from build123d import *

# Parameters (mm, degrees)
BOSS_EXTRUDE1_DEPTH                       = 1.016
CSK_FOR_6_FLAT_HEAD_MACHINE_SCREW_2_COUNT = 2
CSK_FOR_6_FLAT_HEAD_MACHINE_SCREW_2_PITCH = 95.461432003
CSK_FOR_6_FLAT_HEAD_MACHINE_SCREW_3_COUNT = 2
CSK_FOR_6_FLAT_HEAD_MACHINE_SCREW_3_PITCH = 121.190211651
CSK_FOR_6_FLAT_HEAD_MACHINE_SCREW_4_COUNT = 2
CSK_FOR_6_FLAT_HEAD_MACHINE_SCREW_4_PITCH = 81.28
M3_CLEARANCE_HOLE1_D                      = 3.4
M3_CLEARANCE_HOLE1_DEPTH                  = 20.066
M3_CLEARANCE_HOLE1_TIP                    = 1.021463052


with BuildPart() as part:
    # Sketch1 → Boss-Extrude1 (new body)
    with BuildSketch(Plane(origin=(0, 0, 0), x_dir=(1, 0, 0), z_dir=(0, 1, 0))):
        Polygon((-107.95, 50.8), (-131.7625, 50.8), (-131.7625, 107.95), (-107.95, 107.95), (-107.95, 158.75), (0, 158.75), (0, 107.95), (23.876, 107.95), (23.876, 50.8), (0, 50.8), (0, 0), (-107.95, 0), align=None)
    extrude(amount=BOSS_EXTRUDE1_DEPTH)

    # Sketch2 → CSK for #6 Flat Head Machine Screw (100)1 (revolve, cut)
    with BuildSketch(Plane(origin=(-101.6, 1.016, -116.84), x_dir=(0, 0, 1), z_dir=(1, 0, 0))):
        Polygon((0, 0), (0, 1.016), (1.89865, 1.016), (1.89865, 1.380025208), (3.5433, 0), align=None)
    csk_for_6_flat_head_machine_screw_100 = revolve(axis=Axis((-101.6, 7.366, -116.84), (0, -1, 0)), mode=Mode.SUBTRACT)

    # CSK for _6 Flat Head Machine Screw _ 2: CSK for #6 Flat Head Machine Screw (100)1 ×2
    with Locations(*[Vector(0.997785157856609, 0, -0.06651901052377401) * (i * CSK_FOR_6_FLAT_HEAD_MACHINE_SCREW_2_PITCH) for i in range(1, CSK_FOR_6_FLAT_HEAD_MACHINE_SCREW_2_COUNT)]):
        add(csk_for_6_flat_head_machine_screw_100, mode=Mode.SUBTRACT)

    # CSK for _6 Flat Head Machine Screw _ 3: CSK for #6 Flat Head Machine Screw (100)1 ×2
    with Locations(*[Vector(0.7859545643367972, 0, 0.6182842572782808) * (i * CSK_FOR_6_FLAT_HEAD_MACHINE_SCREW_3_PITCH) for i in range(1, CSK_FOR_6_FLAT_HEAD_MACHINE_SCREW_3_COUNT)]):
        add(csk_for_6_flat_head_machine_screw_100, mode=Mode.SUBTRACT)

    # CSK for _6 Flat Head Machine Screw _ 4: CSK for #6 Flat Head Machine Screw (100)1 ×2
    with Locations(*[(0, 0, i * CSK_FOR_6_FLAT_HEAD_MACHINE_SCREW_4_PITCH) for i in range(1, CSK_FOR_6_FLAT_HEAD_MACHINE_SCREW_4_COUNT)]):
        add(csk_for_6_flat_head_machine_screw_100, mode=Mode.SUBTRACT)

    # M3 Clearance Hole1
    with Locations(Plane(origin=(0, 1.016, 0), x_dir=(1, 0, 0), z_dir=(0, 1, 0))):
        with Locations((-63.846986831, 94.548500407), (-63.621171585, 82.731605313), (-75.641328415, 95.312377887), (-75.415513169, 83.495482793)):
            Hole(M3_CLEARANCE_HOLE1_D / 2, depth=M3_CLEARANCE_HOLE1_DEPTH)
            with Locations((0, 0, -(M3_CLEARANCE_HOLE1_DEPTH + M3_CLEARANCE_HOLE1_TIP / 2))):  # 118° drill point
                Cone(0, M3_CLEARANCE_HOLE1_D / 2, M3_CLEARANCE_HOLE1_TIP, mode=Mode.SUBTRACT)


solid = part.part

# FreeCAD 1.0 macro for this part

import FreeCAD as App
import Part
import Sketcher
Q = App.Units.Quantity

doc = App.newDocument("Part")
body = doc.addObject("PartDesign::Body", "Body")

# Sketch on XZ plane
sketch1 = body.newObject("Sketcher::SketchObject", "Sketch")
sketch1.AttachmentSupport = (doc.getObject("XZ_Plane"), [""])
sketch1.MapMode = "FlatFace"
sketch1.addGeometry([
    Part.LineSegment(App.Vector(-131.7625, -50.8, 0), App.Vector(-107.95, -50.8, 0)),  # 0
    Part.LineSegment(App.Vector(-107.95, -50.8, 0), App.Vector(-107.95, 0, 0)),  # 1
    Part.LineSegment(App.Vector(-107.95, 0, 0), App.Vector(0, 0, 0)),  # 2
    Part.LineSegment(App.Vector(0, 0, 0), App.Vector(0, -50.8, 0)),  # 3
    Part.LineSegment(App.Vector(0, -50.8, 0), App.Vector(23.876, -50.8, 0)),  # 4
    Part.LineSegment(App.Vector(23.876, -50.8, 0), App.Vector(23.876, -107.95, 0)),  # 5
    Part.LineSegment(App.Vector(23.876, -107.95, 0), App.Vector(0, -107.95, 0)),  # 6
    Part.LineSegment(App.Vector(0, -107.95, 0), App.Vector(0, -158.75, 0)),  # 7
    Part.LineSegment(App.Vector(0, -158.75, 0), App.Vector(-107.95, -158.75, 0)),  # 8
    Part.LineSegment(App.Vector(-107.95, -158.75, 0), App.Vector(-107.95, -107.95, 0)),  # 9
    Part.LineSegment(App.Vector(-107.95, -107.95, 0), App.Vector(-131.7625, -107.95, 0)),  # 10
    Part.LineSegment(App.Vector(-131.7625, -107.95, 0), App.Vector(-131.7625, -50.8, 0)),  # 11
], False)
sketch1.addConstraint([
    Sketcher.Constraint("Coincident", 0, 2, 1, 1),
    Sketcher.Constraint("Coincident", 1, 2, 2, 1),
    Sketcher.Constraint("Coincident", 2, 2, 3, 1),
    Sketcher.Constraint("Coincident", 3, 2, 4, 1),
    Sketcher.Constraint("Coincident", 4, 2, 5, 1),
    Sketcher.Constraint("Coincident", 5, 2, 6, 1),
    Sketcher.Constraint("Coincident", 6, 2, 7, 1),
    Sketcher.Constraint("Coincident", 7, 2, 8, 1),
    Sketcher.Constraint("Coincident", 8, 2, 9, 1),
    Sketcher.Constraint("Coincident", 9, 2, 10, 1),
    Sketcher.Constraint("Coincident", 10, 2, 11, 1),
    Sketcher.Constraint("Coincident", 11, 2, 0, 1),
    Sketcher.Constraint("Horizontal", 0),
    Sketcher.Constraint("Vertical", 1),
    Sketcher.Constraint("Horizontal", 2),
    Sketcher.Constraint("Vertical", 3),
    Sketcher.Constraint("Horizontal", 4),
    Sketcher.Constraint("Vertical", 5),
    Sketcher.Constraint("Horizontal", 6),
    Sketcher.Constraint("Vertical", 7),
    Sketcher.Constraint("Horizontal", 8),
    Sketcher.Constraint("Vertical", 9),
    Sketcher.Constraint("Horizontal", 10),
    Sketcher.Constraint("Vertical", 11),
    Sketcher.Constraint("Coincident", 2, 2, -1, 1),
    Sketcher.Constraint("PointOnObject", 6, 2, -2),
    Sketcher.Constraint("Horizontal", 0, 2, 3, 2),
    Sketcher.Constraint("Horizontal", 6, 2, 9, 2),
    Sketcher.Constraint("Vertical", 1, 2, 8, 2),
    Sketcher.Constraint("Equal", 3, 7),
    Sketcher.Constraint("DistanceY", 1, 1, 1, 2, Q("2 in")),
    Sketcher.Constraint("DistanceX", 2, 1, 2, 2, Q("4.25 in")),
    Sketcher.Constraint("DistanceX", 4, 1, 4, 2, Q("0.94 in")),
    Sketcher.Constraint("DistanceY", 5, 2, 5, 1, Q("2.25 in")),
    Sketcher.Constraint("DistanceX", 0, 1, 0, 2, Q("0.9375 in")),
])
pad1 = body.newObject("PartDesign::Pad", "Pad")
pad1.Profile = sketch1
pad1.Length = Q("0.04 in")
pad1.Reversed = True

# Sketch on YZ plane
sketch2 = body.newObject("Sketcher::SketchObject", "Sketch001")
sketch2.AttachmentSupport = (doc.getObject("YZ_Plane"), [""])
sketch2.MapMode = "FlatFace"
sketch2.AttachmentOffset = App.Placement(App.Vector(0, 0, -4 * 25.4), App.Rotation())
sketch2.addGeometry([
    Part.LineSegment(App.Vector(0, -116.84, 0), App.Vector(1.016, -116.84, 0)),  # 0
    Part.LineSegment(App.Vector(1.016, -116.84, 0), App.Vector(1.016, -113.2967, 0)),  # 1
    Part.LineSegment(App.Vector(1.016, -113.2967, 0), App.Vector(-0.364025, -114.94135, 0)),  # 2
    Part.LineSegment(App.Vector(-0.364025, -114.94135, 0), App.Vector(0, -114.94135, 0)),  # 3
    Part.LineSegment(App.Vector(0, -114.94135, 0), App.Vector(0, -116.84, 0)),  # 4
], False)
sketch2.addGeometry(Part.LineSegment(App.Vector(1.016, -116.84, 0), App.Vector(-0.364025, -116.84, 0)), True)  # axis
sketch2.addConstraint([
    Sketcher.Constraint("Coincident", 0, 2, 1, 1),
    Sketcher.Constraint("Coincident", 1, 2, 2, 1),
    Sketcher.Constraint("Coincident", 2, 2, 3, 1),
    Sketcher.Constraint("Coincident", 3, 2, 4, 1),
    Sketcher.Constraint("Coincident", 4, 2, 0, 1),
    Sketcher.Constraint("Horizontal", 0),
    Sketcher.Constraint("Vertical", 1),
    Sketcher.Constraint("Horizontal", 3),
    Sketcher.Constraint("Vertical", 4),
    Sketcher.Constraint("Horizontal", 5),
    Sketcher.Constraint("Coincident", 5, 1, 0, 2),
    Sketcher.Constraint("PointOnObject", 3, 2, -2),
    Sketcher.Constraint("Vertical", 2, 2, 5, 2),
    Sketcher.Constraint("Angle", 2, Q("-130 deg")),
    Sketcher.Constraint("DistanceX", 0, 1, 0, 2, Q("0.04 in")),
    Sketcher.Constraint("DistanceY", 0, 2, -1, 1, Q("4.6 in")),
    Sketcher.Constraint("DistanceY", 1, 1, 1, 2, Q("0.1395 in")),
    Sketcher.Constraint("DistanceY", 4, 2, 4, 1, Q("1.89865 mm")),
])
groove = body.newObject("PartDesign::Groove", "Groove")
groove.Profile = sketch2
groove.ReferenceAxis = (sketch2, ["Axis0"])
groove.Angle = 360
doc.recompute()

datumline = body.newObject("PartDesign::Line", "DatumLine")
datumline.Placement = App.Placement(App.Vector(0, 0, 0), App.Rotation(App.Vector(0, 0, 1), App.Vector(0.997785158, 0, -0.066519011)))
linearpattern = body.newObject("PartDesign::LinearPattern", "LinearPattern")
linearpattern.Originals = [groove]
linearpattern.Direction = (datumline, [""])
linearpattern.Mode = "offset"
linearpattern.Offset = 95.461432
linearpattern.Occurrences = 2
body.Tip = linearpattern
doc.recompute()

datumline2 = body.newObject("PartDesign::Line", "DatumLine001")
datumline2.Placement = App.Placement(App.Vector(0, 0, 0), App.Rotation(App.Vector(0, 0, 1), App.Vector(0.785954564, 0, 0.618284257)))
linearpattern2 = body.newObject("PartDesign::LinearPattern", "LinearPattern001")
linearpattern2.Originals = [groove]
linearpattern2.Direction = (datumline2, [""])
linearpattern2.Mode = "offset"
linearpattern2.Offset = 121.190212
linearpattern2.Occurrences = 2
body.Tip = linearpattern2
doc.recompute()

linearpattern3 = body.newObject("PartDesign::LinearPattern", "LinearPattern002")
linearpattern3.Originals = [groove]
linearpattern3.Direction = (doc.getObject("Z_Axis"), [""])
linearpattern3.Mode = "offset"
linearpattern3.Offset = Q("3.2 in")
linearpattern3.Occurrences = 2
body.Tip = linearpattern3

# Sketch on XZ plane
sketch3 = body.newObject("Sketcher::SketchObject", "Sketch002")
sketch3.AttachmentSupport = (doc.getObject("XZ_Plane"), [""])
sketch3.MapMode = "FlatFace"
sketch3.AttachmentOffset = App.Placement(App.Vector(0, 0, -0.04 * 25.4), App.Rotation())
sketch3.addGeometry([
    Part.Circle(App.Vector(-63.846987, -94.5485, 0), App.Vector(0, 0, 1), 1.7),
    Part.Circle(App.Vector(-63.621172, -82.731605, 0), App.Vector(0, 0, 1), 1.7),
    Part.Circle(App.Vector(-75.641328, -95.312378, 0), App.Vector(0, 0, 1), 1.7),
    Part.Circle(App.Vector(-75.415513, -83.495483, 0), App.Vector(0, 0, 1), 1.7),
], False)
sketch3.addConstraint([
    Sketcher.Constraint("Equal", 0, 1),
    Sketcher.Constraint("Equal", 1, 2),
    Sketcher.Constraint("Equal", 2, 3),
    Sketcher.Constraint("Diameter", 0, Q("3.4 mm")),
    Sketcher.Constraint("DistanceY", 0, 3, -1, 1, Q("94.5485 mm")),
    Sketcher.Constraint("DistanceX", 1, 3, -1, 1, Q("63.621172 mm")),
    Sketcher.Constraint("DistanceX", 2, 3, -1, 1, Q("75.641328 mm")),
    Sketcher.Constraint("DistanceX", 2, 3, 0, 3, Q("11.794342 mm")),
    Sketcher.Constraint("DistanceX", 3, 3, 1, 3, Q("11.794342 mm")),
    Sketcher.Constraint("DistanceY", 1, 3, -1, 1, Q("82.731605 mm")),
    Sketcher.Constraint("DistanceY", 2, 3, -1, 1, Q("95.312378 mm")),
    Sketcher.Constraint("DistanceY", 3, 3, -1, 1, Q("83.495483 mm")),
])
doc.recompute()
hole = body.newObject("PartDesign::Hole", "Hole")
hole.Profile = sketch3
hole.ThreadType = "None"
hole.Diameter = 3.4
hole.DepthType = "Dimension"
hole.Depth = Q("0.79 in")
hole.DrillPoint = "Angled"
hole.DrillPointAngle = 118
hole.Reversed = True

doc.recompute()
